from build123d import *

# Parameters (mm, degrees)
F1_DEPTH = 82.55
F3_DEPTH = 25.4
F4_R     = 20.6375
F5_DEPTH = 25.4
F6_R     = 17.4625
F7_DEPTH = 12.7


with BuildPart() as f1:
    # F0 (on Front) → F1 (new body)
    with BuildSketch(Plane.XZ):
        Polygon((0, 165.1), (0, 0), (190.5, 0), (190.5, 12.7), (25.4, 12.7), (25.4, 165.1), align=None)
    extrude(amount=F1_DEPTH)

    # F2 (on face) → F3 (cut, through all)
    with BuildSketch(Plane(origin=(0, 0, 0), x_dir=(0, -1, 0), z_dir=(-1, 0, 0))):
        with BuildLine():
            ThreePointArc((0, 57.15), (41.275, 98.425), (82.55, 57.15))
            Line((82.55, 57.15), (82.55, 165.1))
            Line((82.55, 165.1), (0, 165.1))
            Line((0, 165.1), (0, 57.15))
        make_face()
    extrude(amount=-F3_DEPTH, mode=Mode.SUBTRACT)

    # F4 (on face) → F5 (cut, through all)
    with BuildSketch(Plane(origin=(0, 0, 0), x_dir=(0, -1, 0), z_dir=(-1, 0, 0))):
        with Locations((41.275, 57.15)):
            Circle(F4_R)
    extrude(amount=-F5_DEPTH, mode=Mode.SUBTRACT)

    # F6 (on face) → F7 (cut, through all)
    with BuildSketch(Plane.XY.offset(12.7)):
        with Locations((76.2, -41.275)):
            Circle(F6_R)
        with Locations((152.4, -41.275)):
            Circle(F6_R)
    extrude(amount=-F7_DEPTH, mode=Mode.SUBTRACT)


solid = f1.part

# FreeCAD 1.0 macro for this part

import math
import FreeCAD as App
import Part
import Sketcher

V = App.Vector
Q = App.Units.Quantity

doc = App.newDocument("Part")
body = doc.addObject("PartDesign::Body", "Body")

# Sketch on XZ plane
sketch1 = body.newObject("Sketcher::SketchObject", "Sketch")
sketch1.AttachmentSupport = (doc.getObject("XZ_Plane"), [""])
sketch1.MapMode = "FlatFace"
sketch1.addGeometry(Part.LineSegment(V(0, 165, 0), V(0, 0, 0)), False)
sketch1.addGeometry(Part.LineSegment(V(0, 0, 0), V(190, 0, 0)), False)
sketch1.addGeometry(Part.LineSegment(V(190, 0, 0), V(190, 13, 0)), False)
sketch1.addGeometry(Part.LineSegment(V(190, 13, 0), V(25, 13, 0)), False)
sketch1.addGeometry(Part.LineSegment(V(25, 13, 0), V(25, 165, 0)), False)
sketch1.addGeometry(Part.LineSegment(V(25, 165, 0), V(0, 165, 0)), False)
sketch1.addConstraint(Sketcher.Constraint("Coincident", 0, 2, 1, 1))
sketch1.addConstraint(Sketcher.Constraint("Coincident", 1, 2, 2, 1))
sketch1.addConstraint(Sketcher.Constraint("Coincident", 2, 2, 3, 1))
sketch1.addConstraint(Sketcher.Constraint("Coincident", 3, 2, 4, 1))
sketch1.addConstraint(Sketcher.Constraint("Coincident", 4, 2, 5, 1))
sketch1.addConstraint(Sketcher.Constraint("Coincident", 5, 2, 0, 1))
sketch1.addConstraint(Sketcher.Constraint("Vertical", 0))
sketch1.addConstraint(Sketcher.Constraint("Horizontal", 1))
sketch1.addConstraint(Sketcher.Constraint("Vertical", 2))
sketch1.addConstraint(Sketcher.Constraint("Horizontal", 3))
sketch1.addConstraint(Sketcher.Constraint("Vertical", 4))
sketch1.addConstraint(Sketcher.Constraint("Horizontal", 5))
sketch1.addConstraint(Sketcher.Constraint("Coincident", 0, 2, -1, 1))
sketch1.addConstraint(Sketcher.Constraint("Equal", 3, 0))
sketch1.addConstraint(Sketcher.Constraint("DistanceX", 5, 2, 5, 1, Q("1 in")))
sketch1.addConstraint(Sketcher.Constraint("DistanceY", 4, 1, 4, 2, Q("6 in")))
sketch1.addConstraint(Sketcher.Constraint("DistanceX", 1, 1, 1, 2, Q("7.5 in")))
pad1 = body.newObject("PartDesign::Pad", "Pad")
pad1.Profile = sketch1
pad1.Length = Q("3.25 in")

# Sketch on YZ plane
sketch2 = body.newObject("Sketcher::SketchObject", "Sketch001")
sketch2.AttachmentSupport = (doc.getObject("YZ_Plane"), [""])
sketch2.MapMode = "FlatFace"
sketch2.addGeometry(Part.ArcOfCircle(Part.Circle(V(-41, 57, 0), V(0, 0, 1), 41), math.radians(0), math.radians(180)), False)
sketch2.addGeometry(Part.LineSegment(V(-83, 57, 0), V(-83, 165, 0)), False)
sketch2.addGeometry(Part.LineSegment(V(-83, 165, 0), V(0, 165, 0)), False)
sketch2.addGeometry(Part.LineSegment(V(0, 165, 0), V(0, 57, 0)), False)
sketch2.addConstraint(Sketcher.Constraint("Tangent", 0, 2, 1, 1))
sketch2.addConstraint(Sketcher.Constraint("Coincident", 1, 2, 2, 1))
sketch2.addConstraint(Sketcher.Constraint("Coincident", 2, 2, 3, 1))
sketch2.addConstraint(Sketcher.Constraint("Tangent", 3, 2, 0, 1))
sketch2.addConstraint(Sketcher.Constraint("Vertical", 1))
sketch2.addConstraint(Sketcher.Constraint("Horizontal", 2))
sketch2.addConstraint(Sketcher.Constraint("Vertical", 3))
sketch2.addConstraint(Sketcher.Constraint("PointOnObject", 2, 2, -2))
sketch2.addConstraint(Sketcher.Constraint("Radius", 0, Q("1.625 in")))
sketch2.addConstraint(Sketcher.Constraint("DistanceY", 1, 1, 1, 2, Q("4.25 in")))
sketch2.addConstraint(Sketcher.Constraint("DistanceY", -1, 1, 1, 2, Q("6.5 in")))
pocket1 = body.newObject("PartDesign::Pocket", "Pocket")
pocket1.Profile = sketch2
pocket1.Type = "ThroughAll"
pocket1.Reversed = True

# Sketch on YZ plane
sketch3 = body.newObject("Sketcher::SketchObject", "Sketch002")
sketch3.AttachmentSupport = (doc.getObject("YZ_Plane"), [""])
sketch3.MapMode = "FlatFace"
sketch3.addGeometry(Part.Circle(V(-41, 57, 0), V(0, 0, 1), 21), False)
sketch3.addConstraint(Sketcher.Constraint("Diameter", 0, Q("1.625 in")))
sketch3.addConstraint(Sketcher.Constraint("DistanceY", -1, 1, 0, 3, Q("2.25 in")))
sketch3.addConstraint(Sketcher.Constraint("DistanceX", 0, 3, -1, 1, Q("1.625 in")))
pocket2 = body.newObject("PartDesign::Pocket", "Pocket001")
pocket2.Profile = sketch3
pocket2.Type = "ThroughAll"
pocket2.Reversed = True

# Sketch on XY plane
sketch4 = body.newObject("Sketcher::SketchObject", "Sketch003")
sketch4.AttachmentSupport = (doc.getObject("XY_Plane"), [""])
sketch4.MapMode = "FlatFace"
sketch4.AttachmentOffset = App.Placement(V(0, 0, 0.5 * 25.4), App.Rotation())
sketch4.addGeometry(Part.Circle(V(76, -41, 0), V(0, 0, 1), 17), False)
sketch4.addGeometry(Part.Circle(V(152, -41, 0), V(0, 0, 1), 17), False)
sketch4.addConstraint(Sketcher.Constraint("Equal", 0, 1))
sketch4.addConstraint(Sketcher.Constraint("Horizontal", 0, 3, 1, 3))
sketch4.addConstraint(Sketcher.Constraint("Diameter", 0, Q("1.375 in")))
sketch4.addConstraint(Sketcher.Constraint("DistanceX", -1, 1, 0, 3, Q("3 in")))
sketch4.addConstraint(Sketcher.Constraint("DistanceX", -1, 1, 1, 3, Q("6 in")))
sketch4.addConstraint(Sketcher.Constraint("DistanceY", 0, 3, -1, 1, Q("1.625 in")))
pocket3 = body.newObject("PartDesign::Pocket", "Pocket002")
pocket3.Profile = sketch4
pocket3.Type = "ThroughAll"

doc.recompute()
